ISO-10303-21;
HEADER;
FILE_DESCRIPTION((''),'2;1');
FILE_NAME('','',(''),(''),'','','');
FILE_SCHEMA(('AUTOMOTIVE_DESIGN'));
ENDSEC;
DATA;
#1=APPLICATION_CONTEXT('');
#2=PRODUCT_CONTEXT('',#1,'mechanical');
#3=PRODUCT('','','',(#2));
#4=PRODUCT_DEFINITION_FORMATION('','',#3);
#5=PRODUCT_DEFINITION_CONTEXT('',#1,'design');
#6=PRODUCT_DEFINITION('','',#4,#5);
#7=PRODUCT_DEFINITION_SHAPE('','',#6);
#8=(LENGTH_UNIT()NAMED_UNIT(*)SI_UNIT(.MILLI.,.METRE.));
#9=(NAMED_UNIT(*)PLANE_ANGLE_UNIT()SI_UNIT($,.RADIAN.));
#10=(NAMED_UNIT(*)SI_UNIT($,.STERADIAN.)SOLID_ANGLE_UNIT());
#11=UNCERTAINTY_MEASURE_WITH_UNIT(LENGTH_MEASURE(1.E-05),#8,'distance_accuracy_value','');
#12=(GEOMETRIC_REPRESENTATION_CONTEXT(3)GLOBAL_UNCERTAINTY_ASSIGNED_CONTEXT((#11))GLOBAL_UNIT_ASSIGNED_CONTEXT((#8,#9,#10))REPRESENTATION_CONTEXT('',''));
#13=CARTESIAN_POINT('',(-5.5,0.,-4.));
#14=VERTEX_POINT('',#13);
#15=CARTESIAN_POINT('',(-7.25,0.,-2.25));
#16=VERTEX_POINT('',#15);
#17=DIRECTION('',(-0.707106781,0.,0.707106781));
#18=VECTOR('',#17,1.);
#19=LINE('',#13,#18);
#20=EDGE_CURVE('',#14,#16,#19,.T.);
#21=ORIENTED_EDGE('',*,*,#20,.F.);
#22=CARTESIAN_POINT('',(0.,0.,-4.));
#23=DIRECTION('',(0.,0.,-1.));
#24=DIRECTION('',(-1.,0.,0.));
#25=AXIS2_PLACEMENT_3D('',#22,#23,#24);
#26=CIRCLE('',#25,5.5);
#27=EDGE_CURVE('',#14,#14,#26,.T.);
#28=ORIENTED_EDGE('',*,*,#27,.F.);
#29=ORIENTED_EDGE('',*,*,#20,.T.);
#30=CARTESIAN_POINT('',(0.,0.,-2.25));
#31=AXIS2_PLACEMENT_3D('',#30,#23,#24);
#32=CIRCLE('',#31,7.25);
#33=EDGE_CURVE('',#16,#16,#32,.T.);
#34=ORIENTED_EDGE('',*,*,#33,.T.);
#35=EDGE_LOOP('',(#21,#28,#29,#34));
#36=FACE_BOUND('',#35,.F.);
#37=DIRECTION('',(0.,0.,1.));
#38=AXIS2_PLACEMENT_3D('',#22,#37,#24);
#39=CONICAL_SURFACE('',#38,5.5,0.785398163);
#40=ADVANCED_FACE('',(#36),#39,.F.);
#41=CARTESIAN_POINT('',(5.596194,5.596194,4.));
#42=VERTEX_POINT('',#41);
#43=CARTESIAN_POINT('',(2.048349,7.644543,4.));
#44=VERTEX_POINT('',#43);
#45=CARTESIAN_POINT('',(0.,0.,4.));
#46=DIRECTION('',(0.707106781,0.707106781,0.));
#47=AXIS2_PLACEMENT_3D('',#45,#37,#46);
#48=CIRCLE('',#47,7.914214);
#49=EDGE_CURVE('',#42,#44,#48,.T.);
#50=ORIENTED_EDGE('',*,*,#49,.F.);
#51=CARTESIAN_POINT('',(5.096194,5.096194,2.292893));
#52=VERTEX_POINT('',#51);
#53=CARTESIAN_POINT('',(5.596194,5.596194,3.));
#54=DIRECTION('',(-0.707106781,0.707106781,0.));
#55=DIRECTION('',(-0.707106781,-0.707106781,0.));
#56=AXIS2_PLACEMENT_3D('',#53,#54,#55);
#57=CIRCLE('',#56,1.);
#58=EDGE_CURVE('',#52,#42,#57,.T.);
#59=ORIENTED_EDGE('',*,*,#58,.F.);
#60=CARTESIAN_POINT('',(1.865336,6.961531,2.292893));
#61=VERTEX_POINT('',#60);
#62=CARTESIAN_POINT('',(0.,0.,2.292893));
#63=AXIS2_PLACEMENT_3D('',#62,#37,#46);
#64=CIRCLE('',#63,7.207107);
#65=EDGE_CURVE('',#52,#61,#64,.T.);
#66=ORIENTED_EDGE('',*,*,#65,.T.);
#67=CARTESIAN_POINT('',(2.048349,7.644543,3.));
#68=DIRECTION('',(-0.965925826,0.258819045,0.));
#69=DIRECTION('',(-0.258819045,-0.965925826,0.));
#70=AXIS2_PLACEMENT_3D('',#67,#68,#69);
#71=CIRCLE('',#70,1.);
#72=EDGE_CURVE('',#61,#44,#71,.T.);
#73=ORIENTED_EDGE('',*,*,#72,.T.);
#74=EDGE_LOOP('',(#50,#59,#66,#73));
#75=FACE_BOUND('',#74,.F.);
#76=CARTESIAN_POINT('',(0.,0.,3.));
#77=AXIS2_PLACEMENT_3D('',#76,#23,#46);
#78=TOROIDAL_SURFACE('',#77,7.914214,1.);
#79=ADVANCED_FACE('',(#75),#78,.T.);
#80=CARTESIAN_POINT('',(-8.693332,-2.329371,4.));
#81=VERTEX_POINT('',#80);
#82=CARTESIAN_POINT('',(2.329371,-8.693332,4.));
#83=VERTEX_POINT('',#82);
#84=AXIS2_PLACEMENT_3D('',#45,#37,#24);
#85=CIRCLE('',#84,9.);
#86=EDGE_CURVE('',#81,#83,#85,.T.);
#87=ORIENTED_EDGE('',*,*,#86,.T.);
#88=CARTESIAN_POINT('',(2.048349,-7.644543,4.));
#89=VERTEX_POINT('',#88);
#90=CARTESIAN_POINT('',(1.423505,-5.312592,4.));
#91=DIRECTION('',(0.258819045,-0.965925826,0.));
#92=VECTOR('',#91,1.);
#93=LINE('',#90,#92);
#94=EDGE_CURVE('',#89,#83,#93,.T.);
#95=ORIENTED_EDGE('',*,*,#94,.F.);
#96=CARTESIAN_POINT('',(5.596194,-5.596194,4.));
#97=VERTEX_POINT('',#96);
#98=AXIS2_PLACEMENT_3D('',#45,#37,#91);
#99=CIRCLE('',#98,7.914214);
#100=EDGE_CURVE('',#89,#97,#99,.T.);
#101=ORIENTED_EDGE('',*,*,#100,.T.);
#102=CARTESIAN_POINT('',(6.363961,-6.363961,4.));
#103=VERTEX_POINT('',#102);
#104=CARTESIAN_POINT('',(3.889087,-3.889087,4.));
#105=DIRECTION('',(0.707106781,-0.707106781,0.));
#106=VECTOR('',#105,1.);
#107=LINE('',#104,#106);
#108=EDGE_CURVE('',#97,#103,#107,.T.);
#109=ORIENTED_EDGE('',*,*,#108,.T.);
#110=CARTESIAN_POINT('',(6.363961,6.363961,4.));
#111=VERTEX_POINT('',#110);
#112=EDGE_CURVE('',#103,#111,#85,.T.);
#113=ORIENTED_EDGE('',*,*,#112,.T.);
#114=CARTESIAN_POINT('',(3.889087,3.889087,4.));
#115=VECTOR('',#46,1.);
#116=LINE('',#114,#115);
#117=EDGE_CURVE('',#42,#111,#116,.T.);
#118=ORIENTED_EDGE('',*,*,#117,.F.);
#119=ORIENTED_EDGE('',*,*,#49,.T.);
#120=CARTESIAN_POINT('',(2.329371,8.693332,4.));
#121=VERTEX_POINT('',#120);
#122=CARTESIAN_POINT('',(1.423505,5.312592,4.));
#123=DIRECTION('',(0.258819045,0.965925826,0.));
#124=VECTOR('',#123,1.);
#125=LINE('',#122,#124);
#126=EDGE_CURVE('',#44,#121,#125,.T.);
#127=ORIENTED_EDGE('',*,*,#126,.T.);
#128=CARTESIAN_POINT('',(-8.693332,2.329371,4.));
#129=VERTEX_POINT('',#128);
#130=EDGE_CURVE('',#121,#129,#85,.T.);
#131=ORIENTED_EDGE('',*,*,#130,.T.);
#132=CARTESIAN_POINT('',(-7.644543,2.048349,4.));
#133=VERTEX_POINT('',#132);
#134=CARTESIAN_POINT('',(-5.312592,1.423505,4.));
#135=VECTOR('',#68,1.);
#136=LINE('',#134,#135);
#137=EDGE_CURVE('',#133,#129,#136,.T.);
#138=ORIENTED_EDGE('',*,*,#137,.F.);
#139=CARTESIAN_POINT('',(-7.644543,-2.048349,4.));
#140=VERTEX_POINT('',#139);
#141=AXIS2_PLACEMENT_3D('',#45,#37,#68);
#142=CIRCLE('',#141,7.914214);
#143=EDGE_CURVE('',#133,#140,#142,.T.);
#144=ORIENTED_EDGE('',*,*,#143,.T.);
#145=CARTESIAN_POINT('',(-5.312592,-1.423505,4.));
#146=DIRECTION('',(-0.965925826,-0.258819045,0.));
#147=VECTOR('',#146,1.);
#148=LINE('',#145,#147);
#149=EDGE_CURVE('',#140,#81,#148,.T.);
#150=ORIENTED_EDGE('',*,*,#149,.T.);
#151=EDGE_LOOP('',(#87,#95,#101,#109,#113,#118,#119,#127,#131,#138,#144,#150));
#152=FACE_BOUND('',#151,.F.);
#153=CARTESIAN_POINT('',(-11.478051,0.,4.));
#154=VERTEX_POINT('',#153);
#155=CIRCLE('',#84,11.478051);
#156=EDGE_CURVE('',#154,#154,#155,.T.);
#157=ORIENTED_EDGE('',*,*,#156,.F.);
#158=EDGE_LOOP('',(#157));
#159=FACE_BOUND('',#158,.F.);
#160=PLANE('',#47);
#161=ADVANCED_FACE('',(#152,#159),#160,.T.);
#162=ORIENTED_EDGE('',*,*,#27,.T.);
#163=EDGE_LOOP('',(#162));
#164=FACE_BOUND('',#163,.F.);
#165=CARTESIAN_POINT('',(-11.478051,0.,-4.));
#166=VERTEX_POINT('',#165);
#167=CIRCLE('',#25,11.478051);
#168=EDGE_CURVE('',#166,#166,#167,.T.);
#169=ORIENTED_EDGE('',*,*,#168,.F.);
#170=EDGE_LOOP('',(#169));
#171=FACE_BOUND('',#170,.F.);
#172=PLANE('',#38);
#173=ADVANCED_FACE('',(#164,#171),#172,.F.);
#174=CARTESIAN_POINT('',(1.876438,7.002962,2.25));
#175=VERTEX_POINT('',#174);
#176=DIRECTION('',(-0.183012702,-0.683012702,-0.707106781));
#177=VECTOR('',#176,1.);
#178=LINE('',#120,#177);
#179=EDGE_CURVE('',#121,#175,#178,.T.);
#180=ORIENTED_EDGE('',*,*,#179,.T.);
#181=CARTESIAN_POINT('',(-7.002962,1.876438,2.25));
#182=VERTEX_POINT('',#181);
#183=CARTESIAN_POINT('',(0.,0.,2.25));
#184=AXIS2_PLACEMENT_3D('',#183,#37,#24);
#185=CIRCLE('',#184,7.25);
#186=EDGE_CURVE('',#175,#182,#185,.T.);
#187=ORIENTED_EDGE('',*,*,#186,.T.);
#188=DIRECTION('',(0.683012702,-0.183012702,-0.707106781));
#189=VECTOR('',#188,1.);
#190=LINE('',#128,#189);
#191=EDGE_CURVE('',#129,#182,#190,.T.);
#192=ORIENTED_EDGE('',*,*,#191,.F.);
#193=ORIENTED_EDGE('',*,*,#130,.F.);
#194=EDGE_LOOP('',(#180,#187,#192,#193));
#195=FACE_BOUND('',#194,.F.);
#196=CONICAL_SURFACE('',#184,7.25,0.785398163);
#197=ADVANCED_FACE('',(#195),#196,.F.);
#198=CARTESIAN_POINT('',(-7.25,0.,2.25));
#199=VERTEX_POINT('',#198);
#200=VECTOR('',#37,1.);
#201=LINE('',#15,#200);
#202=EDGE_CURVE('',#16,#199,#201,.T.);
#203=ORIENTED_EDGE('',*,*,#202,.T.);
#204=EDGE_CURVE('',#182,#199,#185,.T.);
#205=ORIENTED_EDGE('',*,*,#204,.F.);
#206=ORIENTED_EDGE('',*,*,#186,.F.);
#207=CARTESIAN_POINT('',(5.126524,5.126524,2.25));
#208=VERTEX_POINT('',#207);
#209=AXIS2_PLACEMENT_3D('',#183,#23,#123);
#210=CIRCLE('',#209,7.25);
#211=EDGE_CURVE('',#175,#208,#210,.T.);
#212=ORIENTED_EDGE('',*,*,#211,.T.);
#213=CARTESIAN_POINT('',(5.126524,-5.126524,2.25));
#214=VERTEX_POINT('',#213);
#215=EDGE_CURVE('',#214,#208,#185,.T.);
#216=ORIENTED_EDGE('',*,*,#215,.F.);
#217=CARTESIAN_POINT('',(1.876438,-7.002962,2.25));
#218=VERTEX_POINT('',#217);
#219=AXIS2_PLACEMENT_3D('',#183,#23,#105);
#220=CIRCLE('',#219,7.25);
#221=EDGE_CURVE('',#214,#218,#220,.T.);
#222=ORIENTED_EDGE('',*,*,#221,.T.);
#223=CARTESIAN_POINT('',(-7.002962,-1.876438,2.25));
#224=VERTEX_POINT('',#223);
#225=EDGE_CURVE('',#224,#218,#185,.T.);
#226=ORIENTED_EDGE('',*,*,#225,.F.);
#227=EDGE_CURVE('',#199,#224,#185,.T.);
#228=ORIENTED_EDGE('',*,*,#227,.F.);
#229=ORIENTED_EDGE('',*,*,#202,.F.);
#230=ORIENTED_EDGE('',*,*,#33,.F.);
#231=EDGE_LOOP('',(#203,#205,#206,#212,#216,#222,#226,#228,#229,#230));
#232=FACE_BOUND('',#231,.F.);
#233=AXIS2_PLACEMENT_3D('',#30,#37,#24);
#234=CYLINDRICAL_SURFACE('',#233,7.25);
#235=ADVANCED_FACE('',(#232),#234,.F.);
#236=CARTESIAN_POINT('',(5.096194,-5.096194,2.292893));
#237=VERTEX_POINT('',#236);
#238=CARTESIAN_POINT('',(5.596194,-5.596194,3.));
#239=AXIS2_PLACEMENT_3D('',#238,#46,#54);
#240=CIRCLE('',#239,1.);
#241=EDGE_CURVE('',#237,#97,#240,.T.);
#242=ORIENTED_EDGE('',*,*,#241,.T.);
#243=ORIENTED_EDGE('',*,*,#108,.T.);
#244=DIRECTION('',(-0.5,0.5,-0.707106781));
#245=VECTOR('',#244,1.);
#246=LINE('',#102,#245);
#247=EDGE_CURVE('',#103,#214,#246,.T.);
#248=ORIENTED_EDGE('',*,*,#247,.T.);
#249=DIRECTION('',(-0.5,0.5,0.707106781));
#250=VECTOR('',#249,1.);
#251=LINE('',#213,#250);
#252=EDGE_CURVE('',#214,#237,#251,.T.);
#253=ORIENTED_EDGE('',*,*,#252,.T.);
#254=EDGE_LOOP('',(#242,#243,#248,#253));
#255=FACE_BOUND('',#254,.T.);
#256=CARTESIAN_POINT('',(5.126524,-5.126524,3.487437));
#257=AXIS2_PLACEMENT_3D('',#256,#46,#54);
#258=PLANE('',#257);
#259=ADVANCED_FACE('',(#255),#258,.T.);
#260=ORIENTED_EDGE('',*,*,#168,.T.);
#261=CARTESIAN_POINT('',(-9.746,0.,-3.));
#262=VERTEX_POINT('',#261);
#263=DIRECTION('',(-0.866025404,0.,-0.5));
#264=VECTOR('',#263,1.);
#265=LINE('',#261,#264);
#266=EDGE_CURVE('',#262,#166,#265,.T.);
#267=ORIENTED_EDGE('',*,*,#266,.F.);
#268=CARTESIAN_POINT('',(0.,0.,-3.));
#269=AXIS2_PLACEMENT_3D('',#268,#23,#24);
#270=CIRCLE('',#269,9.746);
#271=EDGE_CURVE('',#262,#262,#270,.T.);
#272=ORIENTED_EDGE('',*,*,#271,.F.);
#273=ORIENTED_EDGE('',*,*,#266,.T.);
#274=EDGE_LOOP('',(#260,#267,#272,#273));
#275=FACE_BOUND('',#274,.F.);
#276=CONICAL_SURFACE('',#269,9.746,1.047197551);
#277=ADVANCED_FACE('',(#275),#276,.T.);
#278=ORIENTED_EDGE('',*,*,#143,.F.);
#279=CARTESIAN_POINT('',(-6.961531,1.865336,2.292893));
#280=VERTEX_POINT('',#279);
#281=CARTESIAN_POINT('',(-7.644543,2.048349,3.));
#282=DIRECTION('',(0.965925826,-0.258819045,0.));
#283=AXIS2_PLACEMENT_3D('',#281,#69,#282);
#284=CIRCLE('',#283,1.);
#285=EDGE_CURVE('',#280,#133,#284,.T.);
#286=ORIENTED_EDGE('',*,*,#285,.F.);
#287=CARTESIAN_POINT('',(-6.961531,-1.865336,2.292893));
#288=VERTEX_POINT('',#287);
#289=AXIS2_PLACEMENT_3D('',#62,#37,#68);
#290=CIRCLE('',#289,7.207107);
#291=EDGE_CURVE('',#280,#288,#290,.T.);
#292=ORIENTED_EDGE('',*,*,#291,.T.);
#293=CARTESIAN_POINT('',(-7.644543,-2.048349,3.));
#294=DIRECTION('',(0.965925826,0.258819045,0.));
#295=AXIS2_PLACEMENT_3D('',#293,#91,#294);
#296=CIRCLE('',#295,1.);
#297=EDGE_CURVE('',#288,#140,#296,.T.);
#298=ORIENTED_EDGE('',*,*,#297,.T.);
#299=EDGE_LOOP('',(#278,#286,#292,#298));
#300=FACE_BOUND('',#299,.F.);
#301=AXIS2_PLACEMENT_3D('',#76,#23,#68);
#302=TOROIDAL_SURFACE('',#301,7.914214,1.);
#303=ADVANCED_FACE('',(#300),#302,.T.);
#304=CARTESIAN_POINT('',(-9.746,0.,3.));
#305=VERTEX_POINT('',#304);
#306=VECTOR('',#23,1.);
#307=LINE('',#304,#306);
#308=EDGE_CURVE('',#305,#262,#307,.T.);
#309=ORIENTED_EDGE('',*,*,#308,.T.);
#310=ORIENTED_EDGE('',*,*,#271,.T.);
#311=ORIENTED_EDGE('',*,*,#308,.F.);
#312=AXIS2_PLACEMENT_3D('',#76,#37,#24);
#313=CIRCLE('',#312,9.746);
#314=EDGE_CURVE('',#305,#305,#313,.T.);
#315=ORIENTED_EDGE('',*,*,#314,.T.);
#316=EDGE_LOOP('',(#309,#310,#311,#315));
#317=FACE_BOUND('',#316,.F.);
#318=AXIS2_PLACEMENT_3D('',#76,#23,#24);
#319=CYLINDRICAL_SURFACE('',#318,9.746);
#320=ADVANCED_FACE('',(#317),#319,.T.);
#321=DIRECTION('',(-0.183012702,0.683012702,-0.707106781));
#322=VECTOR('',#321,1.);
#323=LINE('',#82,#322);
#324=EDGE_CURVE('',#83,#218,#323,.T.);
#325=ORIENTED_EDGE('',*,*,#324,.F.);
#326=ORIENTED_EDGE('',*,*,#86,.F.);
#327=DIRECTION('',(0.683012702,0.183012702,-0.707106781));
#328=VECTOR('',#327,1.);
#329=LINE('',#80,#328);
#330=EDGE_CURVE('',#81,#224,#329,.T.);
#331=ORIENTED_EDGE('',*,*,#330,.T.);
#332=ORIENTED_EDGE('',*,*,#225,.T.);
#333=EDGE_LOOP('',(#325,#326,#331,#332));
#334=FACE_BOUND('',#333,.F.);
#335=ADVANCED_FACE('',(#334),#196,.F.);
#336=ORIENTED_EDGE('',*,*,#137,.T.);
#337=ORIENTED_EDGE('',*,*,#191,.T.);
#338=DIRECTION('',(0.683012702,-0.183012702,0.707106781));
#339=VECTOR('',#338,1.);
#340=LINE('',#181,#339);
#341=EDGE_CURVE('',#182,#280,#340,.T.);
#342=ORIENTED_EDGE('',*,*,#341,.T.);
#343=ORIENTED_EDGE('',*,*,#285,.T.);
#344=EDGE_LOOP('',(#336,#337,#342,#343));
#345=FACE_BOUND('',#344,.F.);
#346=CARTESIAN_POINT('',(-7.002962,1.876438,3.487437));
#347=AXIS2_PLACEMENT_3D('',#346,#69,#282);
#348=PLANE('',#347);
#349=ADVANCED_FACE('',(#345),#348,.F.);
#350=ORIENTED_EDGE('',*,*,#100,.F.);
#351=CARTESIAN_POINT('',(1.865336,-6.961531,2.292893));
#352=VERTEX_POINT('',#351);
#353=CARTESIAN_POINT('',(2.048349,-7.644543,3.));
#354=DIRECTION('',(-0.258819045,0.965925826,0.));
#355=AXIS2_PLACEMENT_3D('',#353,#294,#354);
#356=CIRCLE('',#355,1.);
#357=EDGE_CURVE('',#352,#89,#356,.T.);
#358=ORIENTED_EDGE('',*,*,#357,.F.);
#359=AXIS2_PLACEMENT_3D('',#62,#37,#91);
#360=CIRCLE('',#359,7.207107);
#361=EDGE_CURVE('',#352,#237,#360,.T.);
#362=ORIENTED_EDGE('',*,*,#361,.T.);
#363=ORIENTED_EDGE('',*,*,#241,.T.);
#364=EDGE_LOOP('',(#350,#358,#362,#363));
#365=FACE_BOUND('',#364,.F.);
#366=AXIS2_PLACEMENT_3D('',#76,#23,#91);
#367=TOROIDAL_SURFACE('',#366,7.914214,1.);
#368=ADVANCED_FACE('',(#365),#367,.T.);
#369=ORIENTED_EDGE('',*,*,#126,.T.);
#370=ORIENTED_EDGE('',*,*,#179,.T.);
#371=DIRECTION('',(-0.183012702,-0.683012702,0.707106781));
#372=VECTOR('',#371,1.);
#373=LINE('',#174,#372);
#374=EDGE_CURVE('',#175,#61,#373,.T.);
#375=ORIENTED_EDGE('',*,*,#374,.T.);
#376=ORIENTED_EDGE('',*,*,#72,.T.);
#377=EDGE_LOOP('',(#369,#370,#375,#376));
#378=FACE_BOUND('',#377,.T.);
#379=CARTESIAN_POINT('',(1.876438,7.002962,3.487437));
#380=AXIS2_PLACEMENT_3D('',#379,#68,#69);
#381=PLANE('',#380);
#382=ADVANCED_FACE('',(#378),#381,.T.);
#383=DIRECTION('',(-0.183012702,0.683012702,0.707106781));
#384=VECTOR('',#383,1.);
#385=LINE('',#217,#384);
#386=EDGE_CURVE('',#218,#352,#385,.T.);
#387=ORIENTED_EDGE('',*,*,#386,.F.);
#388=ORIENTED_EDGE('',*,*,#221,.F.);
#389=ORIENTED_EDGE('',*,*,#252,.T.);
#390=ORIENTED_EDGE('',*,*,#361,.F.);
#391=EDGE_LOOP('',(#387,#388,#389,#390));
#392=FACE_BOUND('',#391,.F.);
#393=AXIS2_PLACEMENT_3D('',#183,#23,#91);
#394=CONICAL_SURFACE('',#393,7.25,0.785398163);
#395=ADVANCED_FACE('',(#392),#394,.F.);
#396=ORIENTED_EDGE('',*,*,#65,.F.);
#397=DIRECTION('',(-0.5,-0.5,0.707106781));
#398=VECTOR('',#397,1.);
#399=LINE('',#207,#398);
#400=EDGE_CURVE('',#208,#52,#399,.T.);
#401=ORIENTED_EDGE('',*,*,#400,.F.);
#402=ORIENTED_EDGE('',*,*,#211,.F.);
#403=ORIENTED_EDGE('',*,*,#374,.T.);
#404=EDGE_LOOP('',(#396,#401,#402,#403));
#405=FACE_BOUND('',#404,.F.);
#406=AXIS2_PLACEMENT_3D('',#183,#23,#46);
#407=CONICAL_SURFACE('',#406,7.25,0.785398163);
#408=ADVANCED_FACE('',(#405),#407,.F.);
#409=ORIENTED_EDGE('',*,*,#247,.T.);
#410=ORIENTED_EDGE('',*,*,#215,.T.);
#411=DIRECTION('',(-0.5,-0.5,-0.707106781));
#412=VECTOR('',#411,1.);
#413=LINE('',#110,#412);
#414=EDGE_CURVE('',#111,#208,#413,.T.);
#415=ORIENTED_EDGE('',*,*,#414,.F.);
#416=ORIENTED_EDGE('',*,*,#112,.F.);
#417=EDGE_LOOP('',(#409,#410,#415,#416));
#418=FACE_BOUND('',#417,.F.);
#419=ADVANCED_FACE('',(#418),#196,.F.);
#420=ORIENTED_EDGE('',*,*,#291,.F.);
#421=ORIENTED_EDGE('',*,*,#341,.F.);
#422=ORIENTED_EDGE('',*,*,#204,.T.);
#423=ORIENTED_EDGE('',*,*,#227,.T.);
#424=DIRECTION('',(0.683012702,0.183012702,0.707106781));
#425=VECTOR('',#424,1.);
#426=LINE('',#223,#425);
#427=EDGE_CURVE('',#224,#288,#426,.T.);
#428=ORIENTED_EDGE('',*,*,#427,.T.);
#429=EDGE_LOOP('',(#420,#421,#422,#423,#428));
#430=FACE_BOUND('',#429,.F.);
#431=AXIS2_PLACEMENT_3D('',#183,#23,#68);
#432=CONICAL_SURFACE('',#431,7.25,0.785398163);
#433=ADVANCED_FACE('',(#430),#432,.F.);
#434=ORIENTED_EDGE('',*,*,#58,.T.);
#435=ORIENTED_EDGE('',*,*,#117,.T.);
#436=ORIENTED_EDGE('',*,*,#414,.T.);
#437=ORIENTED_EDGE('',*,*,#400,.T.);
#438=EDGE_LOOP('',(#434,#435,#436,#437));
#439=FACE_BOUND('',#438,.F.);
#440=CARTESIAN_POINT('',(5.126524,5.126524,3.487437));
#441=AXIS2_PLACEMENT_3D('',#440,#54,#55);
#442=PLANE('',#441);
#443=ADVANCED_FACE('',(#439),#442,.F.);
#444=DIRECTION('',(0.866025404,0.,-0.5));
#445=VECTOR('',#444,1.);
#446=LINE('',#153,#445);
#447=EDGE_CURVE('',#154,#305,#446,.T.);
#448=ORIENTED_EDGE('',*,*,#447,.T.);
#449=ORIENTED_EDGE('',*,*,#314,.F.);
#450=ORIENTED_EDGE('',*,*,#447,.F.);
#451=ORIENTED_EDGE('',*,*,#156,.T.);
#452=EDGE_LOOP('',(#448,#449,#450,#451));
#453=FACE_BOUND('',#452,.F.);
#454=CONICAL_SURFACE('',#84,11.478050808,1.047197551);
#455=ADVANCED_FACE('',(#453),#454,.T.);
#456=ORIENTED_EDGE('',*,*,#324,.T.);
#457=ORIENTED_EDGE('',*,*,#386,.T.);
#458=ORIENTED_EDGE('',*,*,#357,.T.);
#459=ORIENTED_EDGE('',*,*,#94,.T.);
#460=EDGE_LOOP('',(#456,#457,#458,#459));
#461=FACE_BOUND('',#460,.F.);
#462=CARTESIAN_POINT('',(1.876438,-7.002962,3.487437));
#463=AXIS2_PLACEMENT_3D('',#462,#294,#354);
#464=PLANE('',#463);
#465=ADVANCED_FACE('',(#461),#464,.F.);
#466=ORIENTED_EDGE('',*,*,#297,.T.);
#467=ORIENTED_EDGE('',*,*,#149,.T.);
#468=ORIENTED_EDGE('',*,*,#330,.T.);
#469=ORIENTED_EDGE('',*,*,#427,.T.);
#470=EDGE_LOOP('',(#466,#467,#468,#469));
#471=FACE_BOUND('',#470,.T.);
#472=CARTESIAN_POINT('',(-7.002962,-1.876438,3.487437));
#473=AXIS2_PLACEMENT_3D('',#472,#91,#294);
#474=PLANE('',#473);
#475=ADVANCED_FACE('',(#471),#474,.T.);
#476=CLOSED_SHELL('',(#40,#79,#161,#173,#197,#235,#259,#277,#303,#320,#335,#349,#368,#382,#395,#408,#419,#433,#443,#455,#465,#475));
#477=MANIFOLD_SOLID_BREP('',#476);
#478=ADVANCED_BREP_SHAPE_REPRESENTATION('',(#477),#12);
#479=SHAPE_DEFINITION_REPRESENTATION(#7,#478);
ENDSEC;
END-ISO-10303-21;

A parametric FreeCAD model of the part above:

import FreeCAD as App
import Part
import Sketcher

V = App.Vector
Q = App.Units.Quantity


def edges_at(feature, points):
    """Names of the edges that pass closest to the given points."""
    edges = feature.Shape.Edges
    near = lambda p: min(range(len(edges)), key=lambda i: edges[i].distToShape(Part.Vertex(*p))[0])
    return sorted({f"Edge{near(p) + 1}" for p in points})


def add_polygon(sketch, points):
    """Adds a closed chain of lines whose ends are joined by coincident constraints."""
    first, n = sketch.GeometryCount, len(points)
    for a, b in zip(points, points[1:] + points[:1]):
        sketch.addGeometry(Part.LineSegment(App.Vector(*a, 0), App.Vector(*b, 0)), False)
    for i in range(n):
        sketch.addConstraint(Sketcher.Constraint("Coincident", first + i, 2, first + (i + 1) % n, 1))

doc = App.newDocument("Part")
body = doc.addObject("PartDesign::Body", "Body")

# Sketch on XZ plane
sketch1 = body.newObject("Sketcher::SketchObject", "Sketch")
sketch1.AttachmentSupport = (doc.getObject("XZ_Plane"), [""])
sketch1.MapMode = "FlatFace"
add_polygon(sketch1, [(-7.2, -2.2), (-7.2, 2.2), (-9, 4), (-11.5, 4), (-9.7, 3), (-9.7, -3), (-11.5, -4), (-5.5, -4)])  # lines 0-7
sketch1.addConstraint(Sketcher.Constraint("Vertical", 0))
sketch1.addConstraint(Sketcher.Constraint("Horizontal", 2))
sketch1.addConstraint(Sketcher.Constraint("Vertical", 4))
sketch1.addConstraint(Sketcher.Constraint("Horizontal", 6))
sketch1.addConstraint(Sketcher.Constraint("Symmetric", 2, 2, 5, 2, -1))
sketch1.addConstraint(Sketcher.Constraint("Parallel", 1, 7))
sketch1.addConstraint(Sketcher.Constraint("Equal", 3, 5))
sketch1.addConstraint(Sketcher.Constraint("Equal", 1, 7))
sketch1.addConstraint(Sketcher.Constraint("DistanceY", 4, 2, 4, 1, Q("6 mm")))
sketch1.addConstraint(Sketcher.Constraint("Angle", 1, Q("135 deg")))
sketch1.addConstraint(Sketcher.Constraint("Angle", 3, Q("-30 deg")))
sketch1.addConstraint(Sketcher.Constraint("Distance", 3, Q("2 mm")))
sketch1.addConstraint(Sketcher.Constraint("DistanceY", 0, 1, 0, 2, Q("4.5 mm")))
sketch1.addConstraint(Sketcher.Constraint("DistanceX", 1, 2, -1, 1, Q("9 mm")))
sketch1.addConstraint(Sketcher.Constraint("DistanceX", 3, 2, -1, 1, Q("9.746 mm")))
revolution = body.newObject("PartDesign::Revolution", "Revolution")
revolution.Profile = sketch1
revolution.ReferenceAxis = (sketch1, ["V_Axis"])
revolution.Angle = 360

# Sketch on an angled plane
sketch2 = body.newObject("Sketcher::SketchObject", "Sketch001")
sketch2.Placement = App.Placement(V(0, 0, 0), App.Rotation(V(0.965925826, -0.258819045, 0), V(0, 0, 0.999999999), V(-0.258819045, -0.965925826, 0), "ZXY"))
add_polygon(sketch2, [(-9, 4), (-7.2, 2.2), (-5.5, 4)])  # lines 0-2
sketch2.addConstraint(Sketcher.Constraint("Horizontal", 2))
sketch2.addConstraint(Sketcher.Constraint("Perpendicular", 0, 1))
sketch2.addConstraint(Sketcher.Constraint("Equal", 0, 1))
sketch2.addConstraint(Sketcher.Constraint("DistanceX", 2, 2, 2, 1, Q("3.5 mm")))
sketch2.addConstraint(Sketcher.Constraint("DistanceY", -1, 1, 1, 2, Q("4 mm")))
sketch2.addConstraint(Sketcher.Constraint("DistanceX", 2, 2, -1, 1, Q("9 mm")))
revolution2 = body.newObject("PartDesign::Revolution", "Revolution001")
revolution2.Profile = sketch2
revolution2.ReferenceAxis = (sketch2, ["V_Axis"])
revolution2.Angle = 30
body2 = doc.addObject("PartDesign::Body", "Body001")
doc.recompute()

body2.BaseFeature = body
doc.recompute()

body3 = doc.addObject("PartDesign::Body", "Body002")
body3.BaseFeature = body
body3.Placement = App.Placement(V(0, 0, 0), App.Rotation(V(0, 0, 1), 120))
boolean = body2.newObject("PartDesign::Boolean", "Boolean")
boolean.Type = "Fuse"
boolean.addObjects([body3])
doc.recompute()

body.Placement = App.Placement(V(0, 0, 0), App.Rotation(V(0, 0, 1), 240))
boolean2 = body2.newObject("PartDesign::Boolean", "Boolean001")
boolean2.Type = "Fuse"
boolean2.addObjects([body])
doc.recompute()

fillet = body2.newObject("PartDesign::Fillet", "Fillet")
fillet.Base = (boolean2, edges_at(boolean2, [(2.75, 4.763, 4), (-5.5, 0, 4), (2.75, -4.763, 4)]))
fillet.Radius = 1

doc.recompute()
